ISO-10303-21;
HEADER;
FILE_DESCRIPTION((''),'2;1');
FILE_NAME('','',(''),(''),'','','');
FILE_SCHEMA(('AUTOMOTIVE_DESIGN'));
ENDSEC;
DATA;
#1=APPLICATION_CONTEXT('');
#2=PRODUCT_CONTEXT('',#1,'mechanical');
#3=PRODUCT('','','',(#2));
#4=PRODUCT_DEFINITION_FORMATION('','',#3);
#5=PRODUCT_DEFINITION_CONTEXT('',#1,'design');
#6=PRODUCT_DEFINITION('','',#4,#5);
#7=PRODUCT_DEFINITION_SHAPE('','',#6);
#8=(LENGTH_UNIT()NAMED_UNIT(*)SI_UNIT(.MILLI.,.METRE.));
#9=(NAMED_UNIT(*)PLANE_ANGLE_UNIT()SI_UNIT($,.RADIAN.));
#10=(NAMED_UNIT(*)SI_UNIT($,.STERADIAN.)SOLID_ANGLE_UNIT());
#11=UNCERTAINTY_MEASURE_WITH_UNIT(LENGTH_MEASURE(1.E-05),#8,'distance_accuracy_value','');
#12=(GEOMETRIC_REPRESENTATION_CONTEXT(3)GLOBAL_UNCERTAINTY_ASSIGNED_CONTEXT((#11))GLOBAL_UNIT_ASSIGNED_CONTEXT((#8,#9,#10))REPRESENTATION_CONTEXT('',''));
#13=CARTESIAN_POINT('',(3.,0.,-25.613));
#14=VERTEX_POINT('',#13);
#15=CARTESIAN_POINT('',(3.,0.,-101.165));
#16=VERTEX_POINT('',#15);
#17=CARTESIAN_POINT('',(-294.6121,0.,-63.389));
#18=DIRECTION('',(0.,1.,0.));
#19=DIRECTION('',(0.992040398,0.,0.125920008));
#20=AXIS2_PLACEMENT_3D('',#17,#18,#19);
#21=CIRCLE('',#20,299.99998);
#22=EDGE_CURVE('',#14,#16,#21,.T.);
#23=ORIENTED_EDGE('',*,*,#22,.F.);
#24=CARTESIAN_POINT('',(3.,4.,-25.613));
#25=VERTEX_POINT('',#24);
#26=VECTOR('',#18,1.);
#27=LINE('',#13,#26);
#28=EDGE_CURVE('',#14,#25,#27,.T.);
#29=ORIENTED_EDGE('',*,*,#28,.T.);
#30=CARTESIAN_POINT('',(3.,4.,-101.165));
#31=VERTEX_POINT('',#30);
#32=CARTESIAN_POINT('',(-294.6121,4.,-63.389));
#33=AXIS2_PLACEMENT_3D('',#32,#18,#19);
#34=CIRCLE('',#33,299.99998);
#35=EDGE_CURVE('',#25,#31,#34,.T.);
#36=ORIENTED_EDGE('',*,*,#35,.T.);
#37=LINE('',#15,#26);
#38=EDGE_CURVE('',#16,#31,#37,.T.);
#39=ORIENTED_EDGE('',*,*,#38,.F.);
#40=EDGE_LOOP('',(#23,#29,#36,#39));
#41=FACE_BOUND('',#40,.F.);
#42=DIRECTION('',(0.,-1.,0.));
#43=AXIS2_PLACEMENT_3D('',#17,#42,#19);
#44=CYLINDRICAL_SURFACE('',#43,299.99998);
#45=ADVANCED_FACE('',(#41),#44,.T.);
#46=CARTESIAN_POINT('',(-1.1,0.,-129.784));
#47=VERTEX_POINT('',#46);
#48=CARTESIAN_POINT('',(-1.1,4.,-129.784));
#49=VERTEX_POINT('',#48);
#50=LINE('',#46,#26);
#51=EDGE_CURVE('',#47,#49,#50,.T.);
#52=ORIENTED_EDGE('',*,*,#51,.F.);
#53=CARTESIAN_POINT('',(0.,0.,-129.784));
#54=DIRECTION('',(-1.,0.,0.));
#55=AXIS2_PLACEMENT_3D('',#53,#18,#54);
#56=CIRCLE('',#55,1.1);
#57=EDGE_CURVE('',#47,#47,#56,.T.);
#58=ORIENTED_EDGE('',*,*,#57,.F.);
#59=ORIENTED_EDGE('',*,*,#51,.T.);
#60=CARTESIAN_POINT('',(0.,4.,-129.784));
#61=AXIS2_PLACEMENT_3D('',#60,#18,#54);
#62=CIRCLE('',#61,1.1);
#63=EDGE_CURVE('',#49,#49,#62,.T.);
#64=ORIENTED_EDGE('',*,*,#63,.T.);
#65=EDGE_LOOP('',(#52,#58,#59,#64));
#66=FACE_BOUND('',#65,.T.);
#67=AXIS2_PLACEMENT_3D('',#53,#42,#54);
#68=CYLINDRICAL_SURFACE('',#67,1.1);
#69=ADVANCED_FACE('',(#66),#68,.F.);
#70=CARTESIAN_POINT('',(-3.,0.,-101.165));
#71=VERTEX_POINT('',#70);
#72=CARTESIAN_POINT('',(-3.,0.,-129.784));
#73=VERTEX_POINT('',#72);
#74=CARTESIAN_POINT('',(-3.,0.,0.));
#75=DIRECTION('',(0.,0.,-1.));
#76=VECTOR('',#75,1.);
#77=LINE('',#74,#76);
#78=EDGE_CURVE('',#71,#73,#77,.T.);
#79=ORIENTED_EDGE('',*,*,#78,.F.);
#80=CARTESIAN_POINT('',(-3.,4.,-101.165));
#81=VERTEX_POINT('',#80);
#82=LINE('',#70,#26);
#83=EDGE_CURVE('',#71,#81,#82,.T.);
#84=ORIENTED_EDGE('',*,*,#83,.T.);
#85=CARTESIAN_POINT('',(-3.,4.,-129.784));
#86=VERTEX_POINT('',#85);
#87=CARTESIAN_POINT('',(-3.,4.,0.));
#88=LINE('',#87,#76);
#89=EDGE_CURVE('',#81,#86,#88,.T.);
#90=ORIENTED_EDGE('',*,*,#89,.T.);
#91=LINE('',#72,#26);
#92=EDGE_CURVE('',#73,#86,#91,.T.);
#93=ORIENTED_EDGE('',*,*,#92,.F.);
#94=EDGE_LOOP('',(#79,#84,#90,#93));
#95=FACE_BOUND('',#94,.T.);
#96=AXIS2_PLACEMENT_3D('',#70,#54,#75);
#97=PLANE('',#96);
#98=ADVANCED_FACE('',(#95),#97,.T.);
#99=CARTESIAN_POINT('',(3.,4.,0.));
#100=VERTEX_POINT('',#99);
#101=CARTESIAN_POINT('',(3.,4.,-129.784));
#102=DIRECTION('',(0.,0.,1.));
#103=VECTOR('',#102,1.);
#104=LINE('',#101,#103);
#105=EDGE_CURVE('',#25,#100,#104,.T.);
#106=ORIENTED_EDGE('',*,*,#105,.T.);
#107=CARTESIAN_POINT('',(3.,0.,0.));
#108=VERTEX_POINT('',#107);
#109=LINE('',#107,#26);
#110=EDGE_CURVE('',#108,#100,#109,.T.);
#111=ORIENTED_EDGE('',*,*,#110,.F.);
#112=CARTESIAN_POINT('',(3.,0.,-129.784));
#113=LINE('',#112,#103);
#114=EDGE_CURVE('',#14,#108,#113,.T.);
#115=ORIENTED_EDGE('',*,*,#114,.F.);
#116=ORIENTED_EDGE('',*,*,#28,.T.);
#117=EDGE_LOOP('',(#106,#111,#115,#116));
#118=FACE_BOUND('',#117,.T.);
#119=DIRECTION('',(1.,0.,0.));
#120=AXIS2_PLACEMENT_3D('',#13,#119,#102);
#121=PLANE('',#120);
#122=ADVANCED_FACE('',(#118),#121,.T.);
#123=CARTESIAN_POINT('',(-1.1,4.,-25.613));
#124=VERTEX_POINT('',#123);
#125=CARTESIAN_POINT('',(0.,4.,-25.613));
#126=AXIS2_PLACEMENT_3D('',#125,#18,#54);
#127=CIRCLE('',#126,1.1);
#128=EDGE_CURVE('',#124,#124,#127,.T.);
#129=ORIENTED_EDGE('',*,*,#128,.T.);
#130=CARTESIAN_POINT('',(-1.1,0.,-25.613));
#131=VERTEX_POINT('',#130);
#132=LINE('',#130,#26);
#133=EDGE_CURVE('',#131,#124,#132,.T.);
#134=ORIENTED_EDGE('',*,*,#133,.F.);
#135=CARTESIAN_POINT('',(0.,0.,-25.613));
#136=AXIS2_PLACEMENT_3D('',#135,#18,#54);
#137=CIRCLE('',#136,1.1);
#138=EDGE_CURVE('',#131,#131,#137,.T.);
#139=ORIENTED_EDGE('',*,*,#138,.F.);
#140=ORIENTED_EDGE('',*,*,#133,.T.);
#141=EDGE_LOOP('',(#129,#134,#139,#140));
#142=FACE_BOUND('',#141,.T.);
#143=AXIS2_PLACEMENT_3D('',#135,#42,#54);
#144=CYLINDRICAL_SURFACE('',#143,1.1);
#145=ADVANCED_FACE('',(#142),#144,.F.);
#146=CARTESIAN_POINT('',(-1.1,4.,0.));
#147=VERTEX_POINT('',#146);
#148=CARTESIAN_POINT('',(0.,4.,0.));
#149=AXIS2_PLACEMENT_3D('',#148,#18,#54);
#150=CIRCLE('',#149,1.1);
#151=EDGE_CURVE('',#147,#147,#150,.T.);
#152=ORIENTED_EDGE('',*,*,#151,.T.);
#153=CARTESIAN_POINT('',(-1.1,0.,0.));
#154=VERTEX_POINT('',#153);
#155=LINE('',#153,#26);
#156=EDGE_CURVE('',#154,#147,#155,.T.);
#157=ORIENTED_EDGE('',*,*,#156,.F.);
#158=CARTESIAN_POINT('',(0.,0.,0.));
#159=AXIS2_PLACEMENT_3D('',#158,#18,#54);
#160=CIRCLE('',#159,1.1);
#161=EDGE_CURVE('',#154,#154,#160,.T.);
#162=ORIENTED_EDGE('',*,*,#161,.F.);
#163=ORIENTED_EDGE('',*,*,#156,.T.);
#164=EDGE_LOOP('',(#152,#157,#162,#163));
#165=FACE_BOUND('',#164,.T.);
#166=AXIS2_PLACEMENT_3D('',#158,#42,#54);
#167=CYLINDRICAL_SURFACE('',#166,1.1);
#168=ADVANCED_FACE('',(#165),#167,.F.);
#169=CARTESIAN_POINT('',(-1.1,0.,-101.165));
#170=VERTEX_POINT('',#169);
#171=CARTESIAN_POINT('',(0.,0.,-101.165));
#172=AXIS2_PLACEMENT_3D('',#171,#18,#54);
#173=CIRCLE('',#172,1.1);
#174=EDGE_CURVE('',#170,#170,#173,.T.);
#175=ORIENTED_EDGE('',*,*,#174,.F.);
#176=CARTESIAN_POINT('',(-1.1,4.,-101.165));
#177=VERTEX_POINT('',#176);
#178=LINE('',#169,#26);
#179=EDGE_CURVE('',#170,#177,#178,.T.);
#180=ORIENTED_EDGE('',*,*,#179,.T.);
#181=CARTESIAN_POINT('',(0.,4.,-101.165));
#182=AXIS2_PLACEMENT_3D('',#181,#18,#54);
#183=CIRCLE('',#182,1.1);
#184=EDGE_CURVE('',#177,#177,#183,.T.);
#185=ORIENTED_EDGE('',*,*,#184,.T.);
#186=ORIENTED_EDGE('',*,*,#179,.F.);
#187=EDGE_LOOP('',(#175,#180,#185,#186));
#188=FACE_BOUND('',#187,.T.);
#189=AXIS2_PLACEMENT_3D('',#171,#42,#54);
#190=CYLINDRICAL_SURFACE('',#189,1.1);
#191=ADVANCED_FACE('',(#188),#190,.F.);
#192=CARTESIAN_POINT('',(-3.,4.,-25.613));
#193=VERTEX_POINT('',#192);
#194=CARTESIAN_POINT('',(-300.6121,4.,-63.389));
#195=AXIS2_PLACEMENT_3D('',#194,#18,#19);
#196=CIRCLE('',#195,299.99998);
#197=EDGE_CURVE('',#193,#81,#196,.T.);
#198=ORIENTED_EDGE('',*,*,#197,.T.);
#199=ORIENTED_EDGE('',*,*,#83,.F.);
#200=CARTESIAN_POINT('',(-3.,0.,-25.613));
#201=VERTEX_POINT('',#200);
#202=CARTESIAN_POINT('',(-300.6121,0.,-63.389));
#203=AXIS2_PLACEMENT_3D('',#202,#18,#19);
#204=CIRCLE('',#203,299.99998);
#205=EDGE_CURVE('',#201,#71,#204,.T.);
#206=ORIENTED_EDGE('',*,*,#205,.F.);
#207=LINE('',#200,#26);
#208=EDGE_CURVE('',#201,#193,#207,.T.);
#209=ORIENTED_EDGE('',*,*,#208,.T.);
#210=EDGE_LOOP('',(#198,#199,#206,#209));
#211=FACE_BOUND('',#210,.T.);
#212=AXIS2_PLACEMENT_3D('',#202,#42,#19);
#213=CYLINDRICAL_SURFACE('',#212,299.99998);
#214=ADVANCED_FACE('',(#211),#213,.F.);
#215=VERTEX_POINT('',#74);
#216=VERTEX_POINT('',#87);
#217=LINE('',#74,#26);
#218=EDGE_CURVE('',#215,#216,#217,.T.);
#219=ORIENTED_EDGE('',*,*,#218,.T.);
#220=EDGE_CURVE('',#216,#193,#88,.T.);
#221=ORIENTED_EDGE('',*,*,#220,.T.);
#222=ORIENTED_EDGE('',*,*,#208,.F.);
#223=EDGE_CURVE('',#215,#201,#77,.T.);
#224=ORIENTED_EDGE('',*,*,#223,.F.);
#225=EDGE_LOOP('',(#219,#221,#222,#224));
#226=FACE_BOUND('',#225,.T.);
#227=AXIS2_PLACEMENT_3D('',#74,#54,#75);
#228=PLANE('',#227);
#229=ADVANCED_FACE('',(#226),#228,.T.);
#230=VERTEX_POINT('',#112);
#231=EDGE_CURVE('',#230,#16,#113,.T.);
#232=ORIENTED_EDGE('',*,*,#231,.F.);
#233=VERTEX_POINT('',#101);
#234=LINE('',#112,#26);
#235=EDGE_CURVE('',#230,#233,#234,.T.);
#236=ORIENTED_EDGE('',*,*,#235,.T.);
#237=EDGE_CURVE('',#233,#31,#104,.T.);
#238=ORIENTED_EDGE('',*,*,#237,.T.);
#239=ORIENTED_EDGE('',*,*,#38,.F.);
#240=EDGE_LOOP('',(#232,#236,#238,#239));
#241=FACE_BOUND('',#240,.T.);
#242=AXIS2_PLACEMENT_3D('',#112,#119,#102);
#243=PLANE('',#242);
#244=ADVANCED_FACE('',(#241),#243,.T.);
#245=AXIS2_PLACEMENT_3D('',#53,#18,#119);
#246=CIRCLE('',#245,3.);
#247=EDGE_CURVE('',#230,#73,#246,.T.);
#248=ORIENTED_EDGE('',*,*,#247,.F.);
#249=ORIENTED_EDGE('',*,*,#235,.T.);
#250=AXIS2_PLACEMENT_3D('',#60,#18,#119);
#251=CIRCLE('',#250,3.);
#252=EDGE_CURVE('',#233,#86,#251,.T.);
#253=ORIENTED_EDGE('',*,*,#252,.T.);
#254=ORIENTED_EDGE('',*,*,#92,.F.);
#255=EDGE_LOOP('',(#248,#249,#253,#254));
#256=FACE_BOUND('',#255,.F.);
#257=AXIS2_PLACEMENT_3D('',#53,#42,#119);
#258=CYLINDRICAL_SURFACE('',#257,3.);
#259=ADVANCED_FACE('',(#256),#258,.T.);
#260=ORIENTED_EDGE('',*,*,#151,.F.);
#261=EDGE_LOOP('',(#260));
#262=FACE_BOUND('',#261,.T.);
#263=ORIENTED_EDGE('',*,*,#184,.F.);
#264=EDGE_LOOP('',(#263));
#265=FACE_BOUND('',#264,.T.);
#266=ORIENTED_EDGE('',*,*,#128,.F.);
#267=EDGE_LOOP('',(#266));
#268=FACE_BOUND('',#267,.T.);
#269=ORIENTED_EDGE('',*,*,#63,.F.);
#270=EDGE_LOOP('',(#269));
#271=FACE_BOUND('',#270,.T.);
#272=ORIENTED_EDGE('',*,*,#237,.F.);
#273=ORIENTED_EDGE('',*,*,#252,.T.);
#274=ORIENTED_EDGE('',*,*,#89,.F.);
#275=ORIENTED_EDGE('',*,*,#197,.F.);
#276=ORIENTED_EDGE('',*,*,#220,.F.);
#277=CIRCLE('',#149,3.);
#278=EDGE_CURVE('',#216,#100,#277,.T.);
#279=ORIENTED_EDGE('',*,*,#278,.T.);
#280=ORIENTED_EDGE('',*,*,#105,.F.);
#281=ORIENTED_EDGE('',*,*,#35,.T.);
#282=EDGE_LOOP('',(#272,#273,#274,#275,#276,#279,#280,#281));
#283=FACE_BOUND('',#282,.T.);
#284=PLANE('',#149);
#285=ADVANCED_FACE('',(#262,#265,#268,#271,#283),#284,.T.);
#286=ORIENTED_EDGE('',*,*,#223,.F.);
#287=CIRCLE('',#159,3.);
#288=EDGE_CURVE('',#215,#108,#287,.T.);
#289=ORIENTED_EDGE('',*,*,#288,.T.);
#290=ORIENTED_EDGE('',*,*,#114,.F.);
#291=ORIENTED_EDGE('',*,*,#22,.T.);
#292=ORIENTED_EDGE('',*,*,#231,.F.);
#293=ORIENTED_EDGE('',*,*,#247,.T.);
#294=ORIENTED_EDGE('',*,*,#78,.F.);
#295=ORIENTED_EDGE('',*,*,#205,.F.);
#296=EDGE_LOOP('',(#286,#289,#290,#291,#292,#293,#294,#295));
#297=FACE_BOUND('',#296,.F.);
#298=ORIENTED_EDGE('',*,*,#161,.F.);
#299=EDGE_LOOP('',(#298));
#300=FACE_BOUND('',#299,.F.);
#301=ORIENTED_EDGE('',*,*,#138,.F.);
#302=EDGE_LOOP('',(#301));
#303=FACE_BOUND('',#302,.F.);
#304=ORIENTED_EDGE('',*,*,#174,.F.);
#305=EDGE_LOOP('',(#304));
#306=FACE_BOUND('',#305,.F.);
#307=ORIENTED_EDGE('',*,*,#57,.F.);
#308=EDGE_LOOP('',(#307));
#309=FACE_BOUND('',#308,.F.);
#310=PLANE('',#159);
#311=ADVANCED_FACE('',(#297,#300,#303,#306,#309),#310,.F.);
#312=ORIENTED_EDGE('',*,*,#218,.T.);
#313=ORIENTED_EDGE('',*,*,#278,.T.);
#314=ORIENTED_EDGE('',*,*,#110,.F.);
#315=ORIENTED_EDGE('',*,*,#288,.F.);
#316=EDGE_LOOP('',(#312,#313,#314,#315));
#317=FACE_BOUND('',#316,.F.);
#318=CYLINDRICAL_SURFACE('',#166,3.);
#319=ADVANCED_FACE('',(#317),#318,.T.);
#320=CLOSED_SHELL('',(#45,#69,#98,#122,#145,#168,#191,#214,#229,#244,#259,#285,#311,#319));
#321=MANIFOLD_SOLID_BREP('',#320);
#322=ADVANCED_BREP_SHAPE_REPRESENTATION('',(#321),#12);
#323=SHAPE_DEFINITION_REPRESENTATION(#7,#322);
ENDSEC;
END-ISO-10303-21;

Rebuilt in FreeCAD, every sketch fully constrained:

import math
import FreeCAD as App
import Part
import Sketcher

V = App.Vector
Q = App.Units.Quantity

doc = App.newDocument("Part")
body = doc.addObject("PartDesign::Body", "Body")

# Sketch on XZ plane
sketch1 = body.newObject("Sketcher::SketchObject", "Sketch")
sketch1.AttachmentSupport = (doc.getObject("XZ_Plane"), [""])
sketch1.MapMode = "FlatFace"
sketch1.addGeometry([
    Part.LineSegment(V(-3, -25.6, 0), V(-3, 0, 0)),  # 0
    Part.ArcOfCircle(Part.Circle(V(0, 0, 0), V(0, 0, 1), 3), math.radians(0), math.radians(180)),  # 1
    Part.LineSegment(V(3, 0, 0), V(3, -25.6, 0)),  # 2
    Part.ArcOfCircle(Part.Circle(V(-294.6, -63.4, 0), V(0, 0, 1), 300), math.radians(-7.23), math.radians(7.23)),  # 3
    Part.LineSegment(V(3, -101.2, 0), V(3, -129.8, 0)),  # 4
    Part.ArcOfCircle(Part.Circle(V(0, -129.8, 0), V(0, 0, 1), 3), math.radians(180), math.radians(360)),  # 5
    Part.LineSegment(V(-3, -129.8, 0), V(-3, -101.2, 0)),  # 6
    Part.ArcOfCircle(Part.Circle(V(-300.6, -63.4, 0), V(0, 0, 1), 300), math.radians(-7.23), math.radians(7.23)),  # 7
    Part.Circle(V(0, -129.8, 0), V(0, 0, 1), 1.1),  # 8
    Part.Circle(V(0, -101.2, 0), V(0, 0, 1), 1.1),  # 9
    Part.Circle(V(0, -25.6, 0), V(0, 0, 1), 1.1),  # 10
    Part.Circle(V(0, 0, 0), V(0, 0, 1), 1.1),  # 11
], False)
sketch1.addConstraint([
    Sketcher.Constraint("Tangent", 0, 2, 1, 2),
    Sketcher.Constraint("Tangent", 1, 1, 2, 1),
    Sketcher.Constraint("Coincident", 2, 2, 3, 2),
    Sketcher.Constraint("Coincident", 3, 1, 4, 1),
    Sketcher.Constraint("Tangent", 4, 2, 5, 2),
    Sketcher.Constraint("Tangent", 5, 1, 6, 1),
    Sketcher.Constraint("Coincident", 6, 2, 7, 1),
    Sketcher.Constraint("Coincident", 7, 2, 0, 1),
    Sketcher.Constraint("Vertical", 0),
    Sketcher.Constraint("Vertical", 2),
    Sketcher.Constraint("Vertical", 4),
    Sketcher.Constraint("Vertical", 6),
    Sketcher.Constraint("Coincident", 1, 3, -1, 1),
    Sketcher.Constraint("Coincident", 11, 3, -1, 1),
    Sketcher.Constraint("Coincident", 8, 3, 5, 3),
    Sketcher.Constraint("Equal", 1, 5),
    Sketcher.Constraint("Equal", 3, 7),
    Sketcher.Constraint("Equal", 8, 9),
    Sketcher.Constraint("Equal", 9, 10),
    Sketcher.Constraint("Equal", 10, 11),
    Sketcher.Constraint("Symmetric", 3, 1, 6, 2, -2),
    Sketcher.Constraint("PointOnObject", 9, 3, -2),
    Sketcher.Constraint("PointOnObject", 10, 3, -2),
    Sketcher.Constraint("Horizontal", 3, 3, 7, 3),
    Sketcher.Constraint("Horizontal", 10, 3, 2, 2),
    Sketcher.Constraint("Horizontal", 9, 3, 3, 1),
    Sketcher.Constraint("Radius", 1, Q("3 mm")),
    Sketcher.Constraint("Radius", 3, Q("300 mm")),
    Sketcher.Constraint("Diameter", 8, Q("2.2 mm")),
    Sketcher.Constraint("DistanceY", 0, 1, 0, 2, Q("25.613 mm")),
    Sketcher.Constraint("DistanceY", 5, 3, -1, 1, Q("129.784 mm")),
    Sketcher.Constraint("DistanceY", 9, 3, -1, 1, Q("101.165 mm")),
])
pad1 = body.newObject("PartDesign::Pad", "Pad")
pad1.Profile = sketch1
pad1.Length = 4
pad1.Reversed = True

doc.recompute()
